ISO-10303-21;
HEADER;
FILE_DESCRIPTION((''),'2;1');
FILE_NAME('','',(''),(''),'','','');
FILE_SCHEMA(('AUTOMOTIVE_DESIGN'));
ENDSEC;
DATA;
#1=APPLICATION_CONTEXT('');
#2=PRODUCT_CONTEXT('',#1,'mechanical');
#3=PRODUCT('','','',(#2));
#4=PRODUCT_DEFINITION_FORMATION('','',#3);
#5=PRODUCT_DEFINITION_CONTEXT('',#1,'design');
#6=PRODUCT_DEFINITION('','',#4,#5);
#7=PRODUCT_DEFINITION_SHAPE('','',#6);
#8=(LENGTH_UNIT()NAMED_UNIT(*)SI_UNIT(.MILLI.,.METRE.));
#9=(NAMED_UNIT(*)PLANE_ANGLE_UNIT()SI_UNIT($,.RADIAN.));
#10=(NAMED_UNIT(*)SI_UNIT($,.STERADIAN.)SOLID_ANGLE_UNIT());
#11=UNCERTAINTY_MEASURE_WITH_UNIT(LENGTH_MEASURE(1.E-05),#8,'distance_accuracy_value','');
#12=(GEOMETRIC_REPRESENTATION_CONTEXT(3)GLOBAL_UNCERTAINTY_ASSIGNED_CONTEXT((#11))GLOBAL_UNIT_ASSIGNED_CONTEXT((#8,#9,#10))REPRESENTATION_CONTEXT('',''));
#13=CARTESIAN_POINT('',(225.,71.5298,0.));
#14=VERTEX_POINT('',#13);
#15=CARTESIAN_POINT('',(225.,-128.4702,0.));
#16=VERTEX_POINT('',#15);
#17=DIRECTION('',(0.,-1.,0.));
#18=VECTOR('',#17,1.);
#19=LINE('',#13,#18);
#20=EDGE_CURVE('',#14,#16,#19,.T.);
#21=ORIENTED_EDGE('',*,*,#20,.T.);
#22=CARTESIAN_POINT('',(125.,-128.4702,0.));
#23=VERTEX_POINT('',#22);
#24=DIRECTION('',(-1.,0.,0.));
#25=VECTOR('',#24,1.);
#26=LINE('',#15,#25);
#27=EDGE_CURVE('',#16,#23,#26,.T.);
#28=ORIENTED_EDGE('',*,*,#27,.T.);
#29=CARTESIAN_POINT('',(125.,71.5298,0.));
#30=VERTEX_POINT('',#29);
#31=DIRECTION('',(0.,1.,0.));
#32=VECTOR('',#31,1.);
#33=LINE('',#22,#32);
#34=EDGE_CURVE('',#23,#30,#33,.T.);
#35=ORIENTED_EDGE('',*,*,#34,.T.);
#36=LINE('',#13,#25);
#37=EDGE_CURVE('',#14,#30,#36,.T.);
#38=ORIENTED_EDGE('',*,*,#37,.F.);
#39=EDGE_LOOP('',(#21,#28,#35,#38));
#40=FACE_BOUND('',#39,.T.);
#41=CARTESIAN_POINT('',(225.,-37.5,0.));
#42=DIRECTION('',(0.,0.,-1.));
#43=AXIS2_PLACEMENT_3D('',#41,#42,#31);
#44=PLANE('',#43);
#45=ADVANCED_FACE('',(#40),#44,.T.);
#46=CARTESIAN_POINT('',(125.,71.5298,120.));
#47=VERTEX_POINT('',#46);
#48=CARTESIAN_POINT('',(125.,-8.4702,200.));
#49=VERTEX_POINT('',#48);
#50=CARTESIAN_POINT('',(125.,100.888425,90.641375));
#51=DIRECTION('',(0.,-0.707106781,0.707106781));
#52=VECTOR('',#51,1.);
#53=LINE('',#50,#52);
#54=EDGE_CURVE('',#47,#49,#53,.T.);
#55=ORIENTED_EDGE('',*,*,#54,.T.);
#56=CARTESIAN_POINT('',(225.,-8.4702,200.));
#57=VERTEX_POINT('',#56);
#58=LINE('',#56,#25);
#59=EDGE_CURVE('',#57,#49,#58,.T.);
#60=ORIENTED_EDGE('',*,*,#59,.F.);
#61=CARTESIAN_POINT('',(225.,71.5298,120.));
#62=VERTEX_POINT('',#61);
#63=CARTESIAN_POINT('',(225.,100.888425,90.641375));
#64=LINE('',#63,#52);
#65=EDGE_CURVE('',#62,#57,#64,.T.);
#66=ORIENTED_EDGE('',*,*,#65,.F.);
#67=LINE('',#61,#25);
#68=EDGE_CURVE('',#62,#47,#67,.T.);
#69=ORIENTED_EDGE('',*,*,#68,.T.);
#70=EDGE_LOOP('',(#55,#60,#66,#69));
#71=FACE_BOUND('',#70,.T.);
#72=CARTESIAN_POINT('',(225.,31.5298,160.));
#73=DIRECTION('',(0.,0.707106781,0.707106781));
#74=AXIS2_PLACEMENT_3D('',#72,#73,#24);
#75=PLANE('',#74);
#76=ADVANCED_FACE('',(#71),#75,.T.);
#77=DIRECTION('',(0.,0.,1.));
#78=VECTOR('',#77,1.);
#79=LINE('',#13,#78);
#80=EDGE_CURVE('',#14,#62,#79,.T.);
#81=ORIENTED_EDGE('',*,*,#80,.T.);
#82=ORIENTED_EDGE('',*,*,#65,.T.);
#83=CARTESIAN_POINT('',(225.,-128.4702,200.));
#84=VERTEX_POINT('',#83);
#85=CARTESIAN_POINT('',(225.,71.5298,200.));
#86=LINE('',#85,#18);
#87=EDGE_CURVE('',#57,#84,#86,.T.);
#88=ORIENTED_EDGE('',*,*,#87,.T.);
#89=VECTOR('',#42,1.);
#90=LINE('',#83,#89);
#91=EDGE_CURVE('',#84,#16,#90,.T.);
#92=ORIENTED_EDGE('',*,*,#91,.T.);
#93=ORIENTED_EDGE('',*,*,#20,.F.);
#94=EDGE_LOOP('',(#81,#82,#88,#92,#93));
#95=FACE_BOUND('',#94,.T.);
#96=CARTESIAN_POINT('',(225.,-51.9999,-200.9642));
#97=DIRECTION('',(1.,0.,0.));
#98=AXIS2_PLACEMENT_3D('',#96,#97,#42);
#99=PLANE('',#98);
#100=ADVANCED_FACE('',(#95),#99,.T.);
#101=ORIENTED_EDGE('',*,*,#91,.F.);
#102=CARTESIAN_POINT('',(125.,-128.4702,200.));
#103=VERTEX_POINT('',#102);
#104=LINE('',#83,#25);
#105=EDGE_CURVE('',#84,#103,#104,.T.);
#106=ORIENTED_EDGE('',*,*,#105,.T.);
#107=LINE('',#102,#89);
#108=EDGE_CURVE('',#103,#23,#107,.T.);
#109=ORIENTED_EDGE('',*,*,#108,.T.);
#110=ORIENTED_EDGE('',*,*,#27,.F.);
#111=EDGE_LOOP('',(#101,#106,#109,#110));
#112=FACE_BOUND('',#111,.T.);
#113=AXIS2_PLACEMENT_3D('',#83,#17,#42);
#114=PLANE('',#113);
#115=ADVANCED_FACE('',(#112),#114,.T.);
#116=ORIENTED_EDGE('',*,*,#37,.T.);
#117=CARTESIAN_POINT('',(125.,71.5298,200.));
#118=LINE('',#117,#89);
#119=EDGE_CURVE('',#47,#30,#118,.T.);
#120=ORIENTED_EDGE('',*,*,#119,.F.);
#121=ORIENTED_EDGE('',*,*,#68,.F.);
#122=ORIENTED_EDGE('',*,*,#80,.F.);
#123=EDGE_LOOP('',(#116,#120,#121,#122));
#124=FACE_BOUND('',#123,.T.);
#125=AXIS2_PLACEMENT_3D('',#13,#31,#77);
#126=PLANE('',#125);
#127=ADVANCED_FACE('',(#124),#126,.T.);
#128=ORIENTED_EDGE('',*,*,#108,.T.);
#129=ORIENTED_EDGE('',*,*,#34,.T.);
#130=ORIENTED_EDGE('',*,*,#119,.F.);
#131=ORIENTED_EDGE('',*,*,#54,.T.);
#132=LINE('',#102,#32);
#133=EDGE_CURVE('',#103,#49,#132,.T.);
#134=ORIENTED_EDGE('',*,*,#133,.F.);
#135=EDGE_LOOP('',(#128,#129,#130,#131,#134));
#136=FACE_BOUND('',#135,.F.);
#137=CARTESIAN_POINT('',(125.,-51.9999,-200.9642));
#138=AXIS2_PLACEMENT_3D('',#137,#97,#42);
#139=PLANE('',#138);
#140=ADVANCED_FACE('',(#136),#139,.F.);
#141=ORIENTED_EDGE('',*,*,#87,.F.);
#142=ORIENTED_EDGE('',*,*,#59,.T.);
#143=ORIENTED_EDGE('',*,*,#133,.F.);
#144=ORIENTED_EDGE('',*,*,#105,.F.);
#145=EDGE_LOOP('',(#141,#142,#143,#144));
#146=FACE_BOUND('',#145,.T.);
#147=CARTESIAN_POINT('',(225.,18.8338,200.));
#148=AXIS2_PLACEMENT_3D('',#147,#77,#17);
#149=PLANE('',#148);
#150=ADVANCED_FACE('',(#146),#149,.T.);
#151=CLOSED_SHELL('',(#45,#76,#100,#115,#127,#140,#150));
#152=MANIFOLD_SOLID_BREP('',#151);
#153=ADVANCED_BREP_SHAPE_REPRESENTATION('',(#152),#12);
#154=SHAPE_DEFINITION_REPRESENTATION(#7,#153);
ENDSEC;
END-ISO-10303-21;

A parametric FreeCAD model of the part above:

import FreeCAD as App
import Part
import Sketcher

V = App.Vector


def edges_at(feature, points):
    """Names of the edges that pass closest to the given points."""
    edges = feature.Shape.Edges
    near = lambda p: min(range(len(edges)), key=lambda i: edges[i].distToShape(Part.Vertex(*p))[0])
    return sorted({f"Edge{near(p) + 1}" for p in points})


def add_polygon(sketch, points):
    """Adds a closed chain of lines whose ends are joined by coincident constraints."""
    first, n = sketch.GeometryCount, len(points)
    for a, b in zip(points, points[1:] + points[:1]):
        sketch.addGeometry(Part.LineSegment(App.Vector(*a, 0), App.Vector(*b, 0)), False)
    for i in range(n):
        sketch.addConstraint(Sketcher.Constraint("Coincident", first + i, 2, first + (i + 1) % n, 1))

doc = App.newDocument("Part")
body = doc.addObject("PartDesign::Body", "Body")

# Sketch on YZ plane
sketch1 = body.newObject("Sketcher::SketchObject", "Sketch")
sketch1.AttachmentSupport = (doc.getObject("YZ_Plane"), [""])
sketch1.MapMode = "FlatFace"
sketch1.AttachmentOffset = App.Placement(V(0, 0, 225), App.Rotation())
add_polygon(sketch1, [(72, 0), (72, 200), (-128, 200), (-128, 0)])  # lines 0-3
sketch1.addConstraint(Sketcher.Constraint("Vertical", 0))
sketch1.addConstraint(Sketcher.Constraint("Horizontal", 1))
sketch1.addConstraint(Sketcher.Constraint("Vertical", 2))
sketch1.addConstraint(Sketcher.Constraint("Horizontal", 3))
sketch1.addConstraint(Sketcher.Constraint("PointOnObject", 2, 2, -1))
sketch1.addConstraint(Sketcher.Constraint("Equal", 3, 0))
sketch1.addConstraint(Sketcher.Constraint("DistanceX", 1, 2, 1, 1, 200.0))
sketch1.addConstraint(Sketcher.Constraint("DistanceX", -1, 1, 0, 2, 71.5298))
pad1 = body.newObject("PartDesign::Pad", "Pad")
pad1.Profile = sketch1
pad1.Length = 100
pad1.Reversed = True
doc.recompute()

chamfer = body.newObject("PartDesign::Chamfer", "Chamfer")
chamfer.Base = (pad1, edges_at(pad1, [(175, 71.53, 200)]))
chamfer.Size = 80

doc.recompute()
